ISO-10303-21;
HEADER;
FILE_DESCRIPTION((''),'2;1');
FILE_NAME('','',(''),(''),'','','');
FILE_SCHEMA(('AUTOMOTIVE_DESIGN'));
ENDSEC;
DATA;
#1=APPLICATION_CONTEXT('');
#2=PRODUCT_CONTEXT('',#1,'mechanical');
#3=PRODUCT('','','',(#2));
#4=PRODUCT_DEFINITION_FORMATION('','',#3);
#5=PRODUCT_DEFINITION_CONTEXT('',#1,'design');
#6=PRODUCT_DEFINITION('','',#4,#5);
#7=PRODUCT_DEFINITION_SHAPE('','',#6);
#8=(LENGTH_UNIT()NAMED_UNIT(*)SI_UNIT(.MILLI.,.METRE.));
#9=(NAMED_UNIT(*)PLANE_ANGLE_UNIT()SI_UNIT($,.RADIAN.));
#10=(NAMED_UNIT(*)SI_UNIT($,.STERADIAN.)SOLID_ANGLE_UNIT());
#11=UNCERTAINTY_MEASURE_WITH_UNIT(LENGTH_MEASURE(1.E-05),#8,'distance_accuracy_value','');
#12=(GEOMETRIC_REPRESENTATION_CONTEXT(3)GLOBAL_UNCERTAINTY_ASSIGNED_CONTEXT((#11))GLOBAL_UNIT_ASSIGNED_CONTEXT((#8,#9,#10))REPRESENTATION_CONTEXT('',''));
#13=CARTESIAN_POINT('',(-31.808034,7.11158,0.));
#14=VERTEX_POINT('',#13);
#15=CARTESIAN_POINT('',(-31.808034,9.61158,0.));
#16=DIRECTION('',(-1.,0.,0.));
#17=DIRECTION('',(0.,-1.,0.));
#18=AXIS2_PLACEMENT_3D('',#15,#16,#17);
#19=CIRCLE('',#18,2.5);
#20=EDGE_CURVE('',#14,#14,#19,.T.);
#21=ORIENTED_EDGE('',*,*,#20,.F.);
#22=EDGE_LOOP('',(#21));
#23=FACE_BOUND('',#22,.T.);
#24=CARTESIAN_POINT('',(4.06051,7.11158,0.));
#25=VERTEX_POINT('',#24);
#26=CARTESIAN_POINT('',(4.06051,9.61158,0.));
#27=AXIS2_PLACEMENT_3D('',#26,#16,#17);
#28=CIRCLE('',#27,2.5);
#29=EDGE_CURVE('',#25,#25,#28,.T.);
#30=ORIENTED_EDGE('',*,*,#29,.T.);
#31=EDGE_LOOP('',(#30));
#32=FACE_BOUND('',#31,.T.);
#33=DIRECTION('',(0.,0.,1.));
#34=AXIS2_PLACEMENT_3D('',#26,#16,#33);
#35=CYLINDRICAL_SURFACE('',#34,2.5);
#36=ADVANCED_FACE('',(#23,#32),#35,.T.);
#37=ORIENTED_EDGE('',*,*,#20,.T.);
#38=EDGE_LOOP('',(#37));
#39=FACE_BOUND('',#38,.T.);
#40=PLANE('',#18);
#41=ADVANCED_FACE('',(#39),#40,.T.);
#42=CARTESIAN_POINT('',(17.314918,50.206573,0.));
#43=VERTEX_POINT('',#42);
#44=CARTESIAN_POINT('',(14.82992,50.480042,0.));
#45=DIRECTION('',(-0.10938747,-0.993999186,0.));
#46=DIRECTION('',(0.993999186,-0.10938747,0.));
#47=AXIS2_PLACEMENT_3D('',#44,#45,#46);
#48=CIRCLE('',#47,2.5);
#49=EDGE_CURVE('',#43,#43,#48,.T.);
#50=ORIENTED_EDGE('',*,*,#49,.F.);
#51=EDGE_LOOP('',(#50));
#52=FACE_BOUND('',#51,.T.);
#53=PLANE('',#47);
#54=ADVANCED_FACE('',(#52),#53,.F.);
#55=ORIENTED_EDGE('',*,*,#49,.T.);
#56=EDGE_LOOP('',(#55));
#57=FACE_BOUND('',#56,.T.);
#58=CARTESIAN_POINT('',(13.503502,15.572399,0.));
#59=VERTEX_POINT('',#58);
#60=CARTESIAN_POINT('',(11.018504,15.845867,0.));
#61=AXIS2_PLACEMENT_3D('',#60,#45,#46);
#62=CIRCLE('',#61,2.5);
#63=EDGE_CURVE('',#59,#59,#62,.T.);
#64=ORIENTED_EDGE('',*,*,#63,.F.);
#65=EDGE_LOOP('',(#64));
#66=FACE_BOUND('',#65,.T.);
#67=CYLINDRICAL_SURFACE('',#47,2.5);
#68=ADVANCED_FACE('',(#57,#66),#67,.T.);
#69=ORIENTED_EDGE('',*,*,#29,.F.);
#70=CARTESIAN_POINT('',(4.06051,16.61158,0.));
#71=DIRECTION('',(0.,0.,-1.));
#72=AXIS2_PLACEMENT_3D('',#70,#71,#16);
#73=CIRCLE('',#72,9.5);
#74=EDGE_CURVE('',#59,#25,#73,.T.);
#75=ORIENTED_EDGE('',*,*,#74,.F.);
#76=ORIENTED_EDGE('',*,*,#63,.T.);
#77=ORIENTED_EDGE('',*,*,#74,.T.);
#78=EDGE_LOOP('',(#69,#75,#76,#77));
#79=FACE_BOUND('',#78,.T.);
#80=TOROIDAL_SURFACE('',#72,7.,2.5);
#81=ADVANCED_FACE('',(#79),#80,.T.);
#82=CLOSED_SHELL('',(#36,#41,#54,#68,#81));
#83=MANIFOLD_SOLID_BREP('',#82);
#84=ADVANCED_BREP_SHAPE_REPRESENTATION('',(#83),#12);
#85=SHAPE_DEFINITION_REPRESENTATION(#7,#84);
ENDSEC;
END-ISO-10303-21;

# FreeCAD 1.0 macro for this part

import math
import FreeCAD as App
import Part
import Sketcher
Q = App.Units.Quantity

doc = App.newDocument("Part")
body = doc.addObject("PartDesign::Body", "Body")

# Sketch on YZ plane
sketch1 = body.newObject("Sketcher::SketchObject", "Sketch")
sketch1.AttachmentSupport = (doc.getObject("YZ_Plane"), [""])
sketch1.MapMode = "FlatFace"
sketch1.AttachmentOffset = App.Placement(App.Vector(0, 0, -31.808034), App.Rotation())
sketch1.addGeometry(Part.Circle(App.Vector(9.6, 0, 0), App.Vector(0, 0, 1), 2.5), False)
sketch1.addConstraint(Sketcher.Constraint("PointOnObject", 0, 3, -1))
sketch1.addConstraint(Sketcher.Constraint("Diameter", 0, Q("5 mm")))
sketch1.addConstraint(Sketcher.Constraint("DistanceX", -1, 1, 0, 3, Q("9.61158 mm")))

# Sketch on XY plane
sketch2 = body.newObject("Sketcher::SketchObject", "Sketch001")
sketch2.AttachmentSupport = (doc.getObject("XY_Plane"), [""])
sketch2.MapMode = "FlatFace"
sketch2.addGeometry(Part.LineSegment(App.Vector(-32, 10, 0), App.Vector(4, 10, 0)), False)
sketch2.addGeometry(Part.ArcOfCircle(Part.Circle(App.Vector(4, 17, 0), App.Vector(0, 0, 1), 7), math.radians(-90), math.radians(-6)), False)
sketch2.addGeometry(Part.LineSegment(App.Vector(11, 16, 0), App.Vector(15, 50, 0)), False)
sketch2.addConstraint(Sketcher.Constraint("Tangent", 0, 2, 1, 1))
sketch2.addConstraint(Sketcher.Constraint("Tangent", 1, 2, 2, 1))
sketch2.addConstraint(Sketcher.Constraint("Horizontal", 0))
sketch2.addConstraint(Sketcher.Constraint("Radius", 1, Q("7 mm")))
sketch2.addConstraint(Sketcher.Constraint("Angle", 2, Q("83.719993 deg")))
sketch2.addConstraint(Sketcher.Constraint("DistanceX", 0, 1, 0, 2, Q("35.868544 mm")))
sketch2.addConstraint(Sketcher.Constraint("DistanceX", -1, 1, 1, 3, Q("4.06051 mm")))
sketch2.addConstraint(Sketcher.Constraint("DistanceY", -1, 1, 1, 3, Q("16.61158 mm")))
sketch2.addConstraint(Sketcher.Constraint("DistanceX", -1, 1, 2, 2, Q("14.82992 mm")))
doc.recompute()

additivepipe = body.newObject("PartDesign::AdditivePipe", "AdditivePipe")
additivepipe.Profile = sketch1
additivepipe.Spine = (sketch2, ["Edge1", "Edge2", "Edge3"])

doc.recompute()
